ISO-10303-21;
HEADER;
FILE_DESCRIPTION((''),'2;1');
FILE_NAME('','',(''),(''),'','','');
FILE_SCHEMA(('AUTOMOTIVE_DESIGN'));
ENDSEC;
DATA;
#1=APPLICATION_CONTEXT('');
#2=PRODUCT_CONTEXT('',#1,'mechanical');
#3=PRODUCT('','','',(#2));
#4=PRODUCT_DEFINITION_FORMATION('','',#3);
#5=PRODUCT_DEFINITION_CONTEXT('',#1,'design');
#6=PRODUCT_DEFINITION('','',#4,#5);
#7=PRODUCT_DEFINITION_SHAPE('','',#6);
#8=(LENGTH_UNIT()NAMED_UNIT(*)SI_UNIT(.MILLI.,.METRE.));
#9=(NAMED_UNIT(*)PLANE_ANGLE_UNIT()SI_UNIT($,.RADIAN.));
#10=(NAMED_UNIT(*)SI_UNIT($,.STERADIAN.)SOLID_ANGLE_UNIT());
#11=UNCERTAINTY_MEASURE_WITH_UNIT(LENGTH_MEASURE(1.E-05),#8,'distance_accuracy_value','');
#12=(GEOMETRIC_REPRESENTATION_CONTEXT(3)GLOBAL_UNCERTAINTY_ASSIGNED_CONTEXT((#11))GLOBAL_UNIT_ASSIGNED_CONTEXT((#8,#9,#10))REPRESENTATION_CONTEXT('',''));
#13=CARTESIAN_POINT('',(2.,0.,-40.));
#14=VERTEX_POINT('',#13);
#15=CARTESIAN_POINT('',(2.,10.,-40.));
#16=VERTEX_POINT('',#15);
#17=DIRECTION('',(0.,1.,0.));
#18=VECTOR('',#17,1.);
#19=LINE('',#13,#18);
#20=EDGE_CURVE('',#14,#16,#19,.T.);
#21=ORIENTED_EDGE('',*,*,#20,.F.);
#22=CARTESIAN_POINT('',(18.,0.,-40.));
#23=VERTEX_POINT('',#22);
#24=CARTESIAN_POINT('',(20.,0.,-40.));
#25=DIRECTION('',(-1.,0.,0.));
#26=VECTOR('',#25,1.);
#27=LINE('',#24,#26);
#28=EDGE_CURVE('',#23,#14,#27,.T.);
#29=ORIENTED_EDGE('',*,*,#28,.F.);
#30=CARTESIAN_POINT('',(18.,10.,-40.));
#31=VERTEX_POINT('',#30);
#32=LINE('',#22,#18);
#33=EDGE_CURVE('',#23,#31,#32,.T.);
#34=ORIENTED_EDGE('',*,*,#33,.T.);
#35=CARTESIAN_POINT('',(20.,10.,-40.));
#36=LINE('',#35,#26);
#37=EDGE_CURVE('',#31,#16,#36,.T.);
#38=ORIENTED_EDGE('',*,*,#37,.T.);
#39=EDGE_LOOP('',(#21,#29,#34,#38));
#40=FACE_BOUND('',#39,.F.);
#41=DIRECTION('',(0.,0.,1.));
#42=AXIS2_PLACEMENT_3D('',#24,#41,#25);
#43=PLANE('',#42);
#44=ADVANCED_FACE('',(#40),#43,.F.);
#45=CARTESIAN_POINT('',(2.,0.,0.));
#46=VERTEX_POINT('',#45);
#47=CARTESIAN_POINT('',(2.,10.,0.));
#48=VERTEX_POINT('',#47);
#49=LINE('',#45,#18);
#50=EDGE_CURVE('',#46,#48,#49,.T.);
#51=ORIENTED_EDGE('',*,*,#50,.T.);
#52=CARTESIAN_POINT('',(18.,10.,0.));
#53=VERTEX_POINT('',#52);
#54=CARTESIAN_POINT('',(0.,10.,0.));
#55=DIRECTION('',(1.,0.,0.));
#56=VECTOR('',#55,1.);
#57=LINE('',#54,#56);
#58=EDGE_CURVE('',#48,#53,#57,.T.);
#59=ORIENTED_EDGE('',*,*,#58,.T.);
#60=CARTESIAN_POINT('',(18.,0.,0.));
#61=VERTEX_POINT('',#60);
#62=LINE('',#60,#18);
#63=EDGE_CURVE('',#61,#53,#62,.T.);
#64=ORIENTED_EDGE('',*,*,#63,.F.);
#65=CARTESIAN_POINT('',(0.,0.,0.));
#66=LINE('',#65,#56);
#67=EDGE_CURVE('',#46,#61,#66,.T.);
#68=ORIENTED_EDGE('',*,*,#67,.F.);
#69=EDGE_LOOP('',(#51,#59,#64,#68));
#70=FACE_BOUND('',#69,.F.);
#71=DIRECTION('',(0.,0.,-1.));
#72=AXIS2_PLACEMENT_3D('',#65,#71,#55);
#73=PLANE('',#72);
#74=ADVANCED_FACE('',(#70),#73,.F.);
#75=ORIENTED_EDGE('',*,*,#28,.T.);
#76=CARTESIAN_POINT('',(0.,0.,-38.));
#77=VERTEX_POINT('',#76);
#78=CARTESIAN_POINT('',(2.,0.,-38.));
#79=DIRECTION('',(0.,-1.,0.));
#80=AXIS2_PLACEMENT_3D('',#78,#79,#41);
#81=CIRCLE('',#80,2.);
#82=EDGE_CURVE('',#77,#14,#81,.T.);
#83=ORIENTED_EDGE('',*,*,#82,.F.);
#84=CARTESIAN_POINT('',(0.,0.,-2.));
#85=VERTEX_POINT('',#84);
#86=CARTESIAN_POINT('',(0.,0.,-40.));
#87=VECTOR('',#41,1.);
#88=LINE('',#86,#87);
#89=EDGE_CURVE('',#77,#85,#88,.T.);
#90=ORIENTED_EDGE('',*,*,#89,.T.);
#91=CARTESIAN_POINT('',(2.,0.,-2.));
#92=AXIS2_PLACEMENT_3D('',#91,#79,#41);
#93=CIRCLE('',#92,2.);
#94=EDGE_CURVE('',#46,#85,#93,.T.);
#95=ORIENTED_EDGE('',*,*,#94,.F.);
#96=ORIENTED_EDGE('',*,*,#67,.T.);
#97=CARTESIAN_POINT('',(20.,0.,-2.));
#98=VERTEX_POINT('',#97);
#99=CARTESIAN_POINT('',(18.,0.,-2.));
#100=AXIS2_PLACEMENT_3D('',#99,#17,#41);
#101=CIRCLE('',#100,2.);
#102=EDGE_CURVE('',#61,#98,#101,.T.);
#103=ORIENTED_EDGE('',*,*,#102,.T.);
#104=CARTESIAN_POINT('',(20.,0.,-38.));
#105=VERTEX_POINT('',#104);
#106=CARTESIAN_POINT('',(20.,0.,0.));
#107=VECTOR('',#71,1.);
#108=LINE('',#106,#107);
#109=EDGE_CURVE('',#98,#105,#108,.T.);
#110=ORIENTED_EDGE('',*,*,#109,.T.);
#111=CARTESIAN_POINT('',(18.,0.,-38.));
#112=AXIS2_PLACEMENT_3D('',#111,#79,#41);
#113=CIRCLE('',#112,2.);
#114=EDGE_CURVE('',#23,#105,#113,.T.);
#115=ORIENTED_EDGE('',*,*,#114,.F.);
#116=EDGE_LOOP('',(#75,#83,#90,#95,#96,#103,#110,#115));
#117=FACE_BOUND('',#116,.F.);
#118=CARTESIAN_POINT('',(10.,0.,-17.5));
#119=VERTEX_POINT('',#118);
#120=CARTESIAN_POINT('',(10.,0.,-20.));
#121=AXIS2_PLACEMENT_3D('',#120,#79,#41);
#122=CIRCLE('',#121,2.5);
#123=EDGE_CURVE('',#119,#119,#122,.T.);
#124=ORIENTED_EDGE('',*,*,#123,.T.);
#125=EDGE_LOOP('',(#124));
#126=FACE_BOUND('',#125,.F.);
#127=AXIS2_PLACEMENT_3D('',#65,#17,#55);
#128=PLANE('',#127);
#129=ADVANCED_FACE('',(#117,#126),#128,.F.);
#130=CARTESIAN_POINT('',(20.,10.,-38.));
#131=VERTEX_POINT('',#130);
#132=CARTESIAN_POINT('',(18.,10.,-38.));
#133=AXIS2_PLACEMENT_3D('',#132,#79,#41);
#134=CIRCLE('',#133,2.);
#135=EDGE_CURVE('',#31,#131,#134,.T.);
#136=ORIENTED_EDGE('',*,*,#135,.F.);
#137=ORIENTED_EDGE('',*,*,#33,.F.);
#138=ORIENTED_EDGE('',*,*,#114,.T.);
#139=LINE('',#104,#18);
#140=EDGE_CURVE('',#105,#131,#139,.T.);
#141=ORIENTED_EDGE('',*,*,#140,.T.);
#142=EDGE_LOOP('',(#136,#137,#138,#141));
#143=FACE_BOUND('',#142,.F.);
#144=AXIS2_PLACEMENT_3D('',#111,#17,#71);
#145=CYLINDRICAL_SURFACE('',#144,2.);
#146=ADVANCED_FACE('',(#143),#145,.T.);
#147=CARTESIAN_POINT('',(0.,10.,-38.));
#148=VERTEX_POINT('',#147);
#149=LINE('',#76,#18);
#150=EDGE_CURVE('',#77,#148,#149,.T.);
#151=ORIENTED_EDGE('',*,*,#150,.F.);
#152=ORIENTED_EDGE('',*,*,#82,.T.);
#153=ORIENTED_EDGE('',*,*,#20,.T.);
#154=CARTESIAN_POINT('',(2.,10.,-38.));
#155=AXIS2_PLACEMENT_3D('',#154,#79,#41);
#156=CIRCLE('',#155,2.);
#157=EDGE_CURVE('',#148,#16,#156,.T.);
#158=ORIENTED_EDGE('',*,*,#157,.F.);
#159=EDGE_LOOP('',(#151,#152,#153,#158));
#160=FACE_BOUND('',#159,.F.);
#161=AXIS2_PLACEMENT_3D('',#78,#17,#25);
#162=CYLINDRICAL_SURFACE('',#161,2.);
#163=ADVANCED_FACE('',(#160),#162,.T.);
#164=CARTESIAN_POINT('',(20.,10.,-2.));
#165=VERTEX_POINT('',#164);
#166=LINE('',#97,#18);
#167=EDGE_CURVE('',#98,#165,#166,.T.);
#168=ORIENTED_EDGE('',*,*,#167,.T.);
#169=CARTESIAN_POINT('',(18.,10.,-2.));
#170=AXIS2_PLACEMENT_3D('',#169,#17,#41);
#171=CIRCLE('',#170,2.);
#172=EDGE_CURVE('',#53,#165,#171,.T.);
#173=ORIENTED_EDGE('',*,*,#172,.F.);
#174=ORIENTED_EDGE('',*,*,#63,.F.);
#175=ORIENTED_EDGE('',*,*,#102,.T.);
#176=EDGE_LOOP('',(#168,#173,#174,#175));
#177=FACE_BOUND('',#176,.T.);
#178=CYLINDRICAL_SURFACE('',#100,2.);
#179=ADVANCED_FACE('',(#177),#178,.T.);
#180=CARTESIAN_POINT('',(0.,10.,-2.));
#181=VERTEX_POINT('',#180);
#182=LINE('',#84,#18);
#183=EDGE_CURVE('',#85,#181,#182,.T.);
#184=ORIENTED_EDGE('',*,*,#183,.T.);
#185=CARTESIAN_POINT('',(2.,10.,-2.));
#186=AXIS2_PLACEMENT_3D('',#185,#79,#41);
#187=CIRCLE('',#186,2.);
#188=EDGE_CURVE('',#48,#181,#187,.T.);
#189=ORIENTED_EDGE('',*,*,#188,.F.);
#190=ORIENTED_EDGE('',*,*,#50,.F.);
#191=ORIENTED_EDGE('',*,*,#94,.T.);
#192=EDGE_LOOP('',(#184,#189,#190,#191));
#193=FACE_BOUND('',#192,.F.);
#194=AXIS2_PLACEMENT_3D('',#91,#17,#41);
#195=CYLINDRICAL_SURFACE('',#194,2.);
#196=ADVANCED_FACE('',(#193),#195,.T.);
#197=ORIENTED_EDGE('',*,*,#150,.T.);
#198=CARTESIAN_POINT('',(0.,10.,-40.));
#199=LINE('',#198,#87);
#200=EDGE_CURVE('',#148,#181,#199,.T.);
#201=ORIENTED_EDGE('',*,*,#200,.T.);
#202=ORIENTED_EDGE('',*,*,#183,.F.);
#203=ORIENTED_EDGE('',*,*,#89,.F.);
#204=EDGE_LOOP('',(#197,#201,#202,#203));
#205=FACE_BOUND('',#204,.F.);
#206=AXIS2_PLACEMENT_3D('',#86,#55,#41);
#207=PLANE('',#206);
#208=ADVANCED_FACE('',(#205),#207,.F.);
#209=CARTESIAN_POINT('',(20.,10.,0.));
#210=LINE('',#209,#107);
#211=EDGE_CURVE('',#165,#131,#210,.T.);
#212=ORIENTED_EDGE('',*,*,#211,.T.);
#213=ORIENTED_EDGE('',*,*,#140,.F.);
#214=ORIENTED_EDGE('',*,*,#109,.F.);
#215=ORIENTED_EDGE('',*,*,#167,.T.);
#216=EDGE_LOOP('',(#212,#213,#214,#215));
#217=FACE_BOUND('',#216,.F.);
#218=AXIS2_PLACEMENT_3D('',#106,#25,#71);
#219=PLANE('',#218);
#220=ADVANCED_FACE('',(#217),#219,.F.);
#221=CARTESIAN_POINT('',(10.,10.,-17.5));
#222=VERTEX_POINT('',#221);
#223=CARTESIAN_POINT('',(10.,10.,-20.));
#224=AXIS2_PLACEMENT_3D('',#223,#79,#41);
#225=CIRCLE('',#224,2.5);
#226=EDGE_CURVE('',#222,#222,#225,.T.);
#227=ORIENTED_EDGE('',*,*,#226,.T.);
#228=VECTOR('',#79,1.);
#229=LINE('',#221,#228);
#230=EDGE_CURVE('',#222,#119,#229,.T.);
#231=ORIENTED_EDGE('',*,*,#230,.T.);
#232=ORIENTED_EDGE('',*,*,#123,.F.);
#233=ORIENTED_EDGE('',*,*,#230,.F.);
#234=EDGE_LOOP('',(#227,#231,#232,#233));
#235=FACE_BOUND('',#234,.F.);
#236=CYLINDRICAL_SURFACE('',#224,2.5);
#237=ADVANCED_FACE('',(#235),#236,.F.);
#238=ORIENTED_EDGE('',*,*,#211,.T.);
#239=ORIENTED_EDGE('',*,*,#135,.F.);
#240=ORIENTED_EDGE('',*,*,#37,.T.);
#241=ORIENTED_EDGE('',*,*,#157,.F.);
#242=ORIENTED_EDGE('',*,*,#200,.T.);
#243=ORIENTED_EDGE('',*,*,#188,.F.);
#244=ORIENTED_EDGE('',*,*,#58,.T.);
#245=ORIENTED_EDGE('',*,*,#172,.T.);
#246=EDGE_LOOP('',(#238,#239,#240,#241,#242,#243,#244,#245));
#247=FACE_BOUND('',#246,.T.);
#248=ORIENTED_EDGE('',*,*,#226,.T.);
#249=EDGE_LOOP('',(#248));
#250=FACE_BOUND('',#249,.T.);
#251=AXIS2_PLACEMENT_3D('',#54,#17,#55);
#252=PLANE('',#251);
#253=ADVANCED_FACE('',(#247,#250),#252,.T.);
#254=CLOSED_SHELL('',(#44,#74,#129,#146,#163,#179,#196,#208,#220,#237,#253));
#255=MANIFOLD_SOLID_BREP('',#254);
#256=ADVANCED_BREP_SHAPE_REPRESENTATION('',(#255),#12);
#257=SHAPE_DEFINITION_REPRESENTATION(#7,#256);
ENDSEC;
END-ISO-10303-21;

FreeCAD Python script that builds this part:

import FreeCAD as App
import Part
import Sketcher
from FreeCAD import Vector
Q = App.Units.Quantity


def edges_at(feature, points):
    """Names of the edges that pass closest to the given points."""
    edges = feature.Shape.Edges
    near = lambda p: min(range(len(edges)), key=lambda i: edges[i].distToShape(Part.Vertex(*p))[0])
    return sorted({f"Edge{near(p) + 1}" for p in points})


def add_polygon(sketch, points):
    """Adds a closed chain of lines whose ends are joined by coincident constraints."""
    first, n = sketch.GeometryCount, len(points)
    for a, b in zip(points, points[1:] + points[:1]):
        sketch.addGeometry(Part.LineSegment(App.Vector(*a, 0), App.Vector(*b, 0)), False)
    for i in range(n):
        sketch.addConstraint(Sketcher.Constraint("Coincident", first + i, 2, first + (i + 1) % n, 1))

doc = App.newDocument("Part")
body = doc.addObject("PartDesign::Body", "Body")

# Sketch on XZ plane
sketch1 = body.newObject("Sketcher::SketchObject", "Sketch")
sketch1.AttachmentSupport = (doc.getObject("XZ_Plane"), [""])
sketch1.MapMode = "FlatFace"
add_polygon(sketch1, [(0, -40), (0, 0), (20, 0), (20, -40)])  # lines 0-3
sketch1.addConstraint([
    Sketcher.Constraint("Vertical", 0),
    Sketcher.Constraint("Horizontal", 1),
    Sketcher.Constraint("Vertical", 2),
    Sketcher.Constraint("Horizontal", 3),
    Sketcher.Constraint("Coincident", 0, 2, -1, 1),
    Sketcher.Constraint("DistanceX", 1, 1, 1, 2, Q("20 mm")),
    Sketcher.Constraint("DistanceY", 0, 1, 0, 2, Q("40 mm")),
])
pad1 = body.newObject("PartDesign::Pad", "Pad")
pad1.Profile = sketch1
pad1.Length = 10
pad1.Reversed = True

# Sketch on XZ plane
sketch2 = body.newObject("Sketcher::SketchObject", "Sketch001")
sketch2.AttachmentSupport = (doc.getObject("XZ_Plane"), [""])
sketch2.MapMode = "FlatFace"
sketch2.AttachmentOffset = App.Placement(Vector(0, 0, -10), App.Rotation())
sketch2.addGeometry(Part.Circle(Vector(10, -20, 0), Vector(0, 0, 1), 2.5), False)
sketch2.addConstraint([
    Sketcher.Constraint("Diameter", 0, Q("5 mm")),
    Sketcher.Constraint("DistanceX", -1, 1, 0, 3, Q("10 mm")),
    Sketcher.Constraint("DistanceY", 0, 3, -1, 1, Q("20 mm")),
])
doc.recompute()
hole = body.newObject("PartDesign::Hole", "Hole")
hole.Profile = sketch2
hole.ThreadType = "None"
hole.Diameter = 5
hole.DepthType = "Dimension"
hole.Depth = 10
hole.DrillPoint = "Angled"
hole.DrillPointAngle = 118
hole.Reversed = True
doc.recompute()

fillet = body.newObject("PartDesign::Fillet", "Fillet")
fillet.Base = (hole, edges_at(hole, [(20, 5, 0)]))
fillet.Radius = 2
doc.recompute()

fillet2 = body.newObject("PartDesign::Fillet", "Fillet001")
fillet2.Base = (fillet, edges_at(fillet, [(0, 5, 0)]))
fillet2.Radius = 2
doc.recompute()

fillet3 = body.newObject("PartDesign::Fillet", "Fillet002")
fillet3.Base = (fillet2, edges_at(fillet2, [(0, 5, -40)]))
fillet3.Radius = 2
doc.recompute()

fillet4 = body.newObject("PartDesign::Fillet", "Fillet003")
fillet4.Base = (fillet3, edges_at(fillet3, [(20, 5, -40)]))
fillet4.Radius = 2

doc.recompute()
